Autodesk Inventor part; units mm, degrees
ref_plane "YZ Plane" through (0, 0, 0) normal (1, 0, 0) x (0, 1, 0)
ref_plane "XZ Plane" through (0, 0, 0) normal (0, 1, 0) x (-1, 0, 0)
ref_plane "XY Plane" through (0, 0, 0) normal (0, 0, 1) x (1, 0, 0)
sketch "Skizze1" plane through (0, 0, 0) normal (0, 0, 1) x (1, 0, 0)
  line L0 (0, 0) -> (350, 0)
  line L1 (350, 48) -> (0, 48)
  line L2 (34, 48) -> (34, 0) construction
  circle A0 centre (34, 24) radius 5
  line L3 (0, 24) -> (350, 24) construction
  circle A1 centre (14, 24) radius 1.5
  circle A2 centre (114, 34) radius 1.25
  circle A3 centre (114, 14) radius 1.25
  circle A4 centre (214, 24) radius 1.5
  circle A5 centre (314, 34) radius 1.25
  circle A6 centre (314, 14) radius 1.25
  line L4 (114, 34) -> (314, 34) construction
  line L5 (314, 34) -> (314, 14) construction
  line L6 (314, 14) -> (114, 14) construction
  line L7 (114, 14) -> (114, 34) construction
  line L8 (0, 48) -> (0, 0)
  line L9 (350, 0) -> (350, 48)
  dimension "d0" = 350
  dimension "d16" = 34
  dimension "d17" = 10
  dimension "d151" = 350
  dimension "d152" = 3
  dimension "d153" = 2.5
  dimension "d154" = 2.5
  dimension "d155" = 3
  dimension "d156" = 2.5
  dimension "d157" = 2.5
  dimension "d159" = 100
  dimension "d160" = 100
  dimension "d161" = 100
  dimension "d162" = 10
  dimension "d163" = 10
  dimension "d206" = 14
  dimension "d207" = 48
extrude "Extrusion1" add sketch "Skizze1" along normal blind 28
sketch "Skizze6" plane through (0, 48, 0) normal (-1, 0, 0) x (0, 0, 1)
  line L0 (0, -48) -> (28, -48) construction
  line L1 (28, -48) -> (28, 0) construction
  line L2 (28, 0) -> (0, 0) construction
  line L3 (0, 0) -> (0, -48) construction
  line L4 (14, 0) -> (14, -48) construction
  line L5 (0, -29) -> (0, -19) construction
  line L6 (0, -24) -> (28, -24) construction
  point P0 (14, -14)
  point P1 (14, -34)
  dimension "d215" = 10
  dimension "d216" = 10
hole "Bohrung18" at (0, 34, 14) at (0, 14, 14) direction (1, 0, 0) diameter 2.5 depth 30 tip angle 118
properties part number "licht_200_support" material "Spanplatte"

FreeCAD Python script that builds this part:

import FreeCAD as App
import Part
import Sketcher
Q = App.Units.Quantity

doc = App.newDocument("Part")
params = doc.addObject("Spreadsheet::Sheet", "Params")
for row, (alias, value) in enumerate([
    ("sketch1_diameter", "3 mm"),
    ("sketch1_diameter2", "10 mm"),
    ("sketch1_diameter3", "2.5 mm"),
    ("sketch1_width", "350 mm"),
    ("sketch1_height", "48 mm"),
    ("pad1_length", "28 mm"),
    ("sketch2_diameter", "2.5 mm"),
    ("hole_diameter", "2.5 mm"),
    ("hole_depth", "30 mm"),
], start=1):
    params.set(f"A{row}", alias)
    params.set(f"B{row}", "=" + value)
    params.setAlias(f"B{row}", alias)

body = doc.addObject("PartDesign::Body", "Body")

sketch1 = body.newObject("Sketcher::SketchObject", "Sketch")
sketch1.AttachmentSupport = (doc.getObject("XY_Plane"), [""])
sketch1.MapMode = "FlatFace"
sketch1.addGeometry([
    Part.LineSegment(App.Vector(0, 48, 0), App.Vector(0, 0, 0)),
    Part.LineSegment(App.Vector(0, 0, 0), App.Vector(350, 0, 0)),
    Part.LineSegment(App.Vector(350, 0, 0), App.Vector(350, 48, 0)),
    Part.LineSegment(App.Vector(350, 48, 0), App.Vector(0, 48, 0)),
    Part.Circle(App.Vector(114, 14, 0), App.Vector(0, 0, 1), 1.25),
    Part.Circle(App.Vector(314, 14, 0), App.Vector(0, 0, 1), 1.25),
    Part.Circle(App.Vector(14, 24, 0), App.Vector(0, 0, 1), 1.5),
    Part.Circle(App.Vector(34, 24, 0), App.Vector(0, 0, 1), 5),
    Part.Circle(App.Vector(114, 34, 0), App.Vector(0, 0, 1), 1.25),
    Part.Circle(App.Vector(214, 24, 0), App.Vector(0, 0, 1), 1.5),
    Part.Circle(App.Vector(314, 34, 0), App.Vector(0, 0, 1), 1.25),
], False)
sketch1.addConstraint([
    Sketcher.Constraint("Coincident", 0, 2, 1, 1),
    Sketcher.Constraint("Coincident", 1, 2, 2, 1),
    Sketcher.Constraint("Coincident", 2, 2, 3, 1),
    Sketcher.Constraint("Coincident", 3, 2, 0, 1),
    Sketcher.Constraint("Vertical", 0),
    Sketcher.Constraint("Horizontal", 1),
    Sketcher.Constraint("Vertical", 2),
    Sketcher.Constraint("Horizontal", 3),
    Sketcher.Constraint("Coincident", 0, 2, -1, 1),
    Sketcher.Constraint("Equal", 4, 5),
    Sketcher.Constraint("Equal", 5, 8),
    Sketcher.Constraint("Equal", 6, 9),
    Sketcher.Constraint("Equal", 8, 10),
    Sketcher.Constraint("Horizontal", 4, 3, 5, 3),
    Sketcher.Constraint("Horizontal", 6, 3, 7, 3),
    Sketcher.Constraint("Horizontal", 7, 3, 9, 3),
    Sketcher.Constraint("Horizontal", 8, 3, 10, 3),
    Sketcher.Constraint("Vertical", 4, 3, 8, 3),
    Sketcher.Constraint("Vertical", 5, 3, 10, 3),
    Sketcher.Constraint("Diameter", 6, Q("3 mm")),
    Sketcher.Constraint("Diameter", 7, Q("10 mm")),
    Sketcher.Constraint("Diameter", 4, Q("2.5 mm")),
    Sketcher.Constraint("DistanceX", 1, 1, 1, 2, Q("350 mm")),
    Sketcher.Constraint("DistanceY", 0, 2, 0, 1, Q("48 mm")),
    Sketcher.Constraint("DistanceY", -1, 1, 4, 3, Q("14 mm")),
    Sketcher.Constraint("DistanceX", -1, 1, 6, 3, Q("14 mm")),
    Sketcher.Constraint("DistanceX", -1, 1, 7, 3, Q("34 mm")),
    Sketcher.Constraint("DistanceY", -1, 1, 8, 3, Q("34 mm")),
    Sketcher.Constraint("DistanceX", 6, 3, 4, 3, Q("100 mm")),
    Sketcher.Constraint("DistanceY", 4, 3, 6, 3, Q("10 mm")),
    Sketcher.Constraint("DistanceX", 4, 3, 9, 3, Q("100 mm")),
    Sketcher.Constraint("DistanceX", 9, 3, 5, 3, Q("100 mm")),
])
sketch1.setExpression("Constraints[19]", "Params.sketch1_diameter")
sketch1.setExpression("Constraints[20]", "Params.sketch1_diameter2")
sketch1.setExpression("Constraints[21]", "Params.sketch1_diameter3")
sketch1.setExpression("Constraints[22]", "Params.sketch1_width")
sketch1.setExpression("Constraints[23]", "Params.sketch1_height")
pad1 = body.newObject("PartDesign::Pad", "Pad")
pad1.Profile = sketch1
pad1.setExpression("Length", "Params.pad1_length")

sketch2 = body.newObject("Sketcher::SketchObject", "Sketch001")
sketch2.AttachmentSupport = (doc.getObject("YZ_Plane"), [""])
sketch2.MapMode = "FlatFace"
sketch2.addGeometry([
    Part.Circle(App.Vector(34, 14, 0), App.Vector(0, 0, 1), 1.25),
    Part.Circle(App.Vector(14, 14, 0), App.Vector(0, 0, 1), 1.25),
], False)
sketch2.addConstraint([
    Sketcher.Constraint("Equal", 0, 1),
    Sketcher.Constraint("Horizontal", 0, 3, 1, 3),
    Sketcher.Constraint("Diameter", 0, Q("2.5 mm")),
    Sketcher.Constraint("DistanceX", -1, 1, 0, 3, Q("34 mm")),
    Sketcher.Constraint("DistanceY", -1, 1, 0, 3, Q("14 mm")),
    Sketcher.Constraint("DistanceX", -1, 1, 1, 3, Q("14 mm")),
])
sketch2.setExpression("Constraints[2]", "Params.sketch2_diameter")
doc.recompute()
hole = body.newObject("PartDesign::Hole", "Hole")
hole.Profile = sketch2
hole.ThreadType = "None"
hole.setExpression("Diameter", "Params.hole_diameter")
hole.DepthType = "Dimension"
hole.setExpression("Depth", "Params.hole_depth")
hole.DrillPoint = "Angled"
hole.DrillPointAngle = 118
hole.Reversed = True

doc.recompute()
